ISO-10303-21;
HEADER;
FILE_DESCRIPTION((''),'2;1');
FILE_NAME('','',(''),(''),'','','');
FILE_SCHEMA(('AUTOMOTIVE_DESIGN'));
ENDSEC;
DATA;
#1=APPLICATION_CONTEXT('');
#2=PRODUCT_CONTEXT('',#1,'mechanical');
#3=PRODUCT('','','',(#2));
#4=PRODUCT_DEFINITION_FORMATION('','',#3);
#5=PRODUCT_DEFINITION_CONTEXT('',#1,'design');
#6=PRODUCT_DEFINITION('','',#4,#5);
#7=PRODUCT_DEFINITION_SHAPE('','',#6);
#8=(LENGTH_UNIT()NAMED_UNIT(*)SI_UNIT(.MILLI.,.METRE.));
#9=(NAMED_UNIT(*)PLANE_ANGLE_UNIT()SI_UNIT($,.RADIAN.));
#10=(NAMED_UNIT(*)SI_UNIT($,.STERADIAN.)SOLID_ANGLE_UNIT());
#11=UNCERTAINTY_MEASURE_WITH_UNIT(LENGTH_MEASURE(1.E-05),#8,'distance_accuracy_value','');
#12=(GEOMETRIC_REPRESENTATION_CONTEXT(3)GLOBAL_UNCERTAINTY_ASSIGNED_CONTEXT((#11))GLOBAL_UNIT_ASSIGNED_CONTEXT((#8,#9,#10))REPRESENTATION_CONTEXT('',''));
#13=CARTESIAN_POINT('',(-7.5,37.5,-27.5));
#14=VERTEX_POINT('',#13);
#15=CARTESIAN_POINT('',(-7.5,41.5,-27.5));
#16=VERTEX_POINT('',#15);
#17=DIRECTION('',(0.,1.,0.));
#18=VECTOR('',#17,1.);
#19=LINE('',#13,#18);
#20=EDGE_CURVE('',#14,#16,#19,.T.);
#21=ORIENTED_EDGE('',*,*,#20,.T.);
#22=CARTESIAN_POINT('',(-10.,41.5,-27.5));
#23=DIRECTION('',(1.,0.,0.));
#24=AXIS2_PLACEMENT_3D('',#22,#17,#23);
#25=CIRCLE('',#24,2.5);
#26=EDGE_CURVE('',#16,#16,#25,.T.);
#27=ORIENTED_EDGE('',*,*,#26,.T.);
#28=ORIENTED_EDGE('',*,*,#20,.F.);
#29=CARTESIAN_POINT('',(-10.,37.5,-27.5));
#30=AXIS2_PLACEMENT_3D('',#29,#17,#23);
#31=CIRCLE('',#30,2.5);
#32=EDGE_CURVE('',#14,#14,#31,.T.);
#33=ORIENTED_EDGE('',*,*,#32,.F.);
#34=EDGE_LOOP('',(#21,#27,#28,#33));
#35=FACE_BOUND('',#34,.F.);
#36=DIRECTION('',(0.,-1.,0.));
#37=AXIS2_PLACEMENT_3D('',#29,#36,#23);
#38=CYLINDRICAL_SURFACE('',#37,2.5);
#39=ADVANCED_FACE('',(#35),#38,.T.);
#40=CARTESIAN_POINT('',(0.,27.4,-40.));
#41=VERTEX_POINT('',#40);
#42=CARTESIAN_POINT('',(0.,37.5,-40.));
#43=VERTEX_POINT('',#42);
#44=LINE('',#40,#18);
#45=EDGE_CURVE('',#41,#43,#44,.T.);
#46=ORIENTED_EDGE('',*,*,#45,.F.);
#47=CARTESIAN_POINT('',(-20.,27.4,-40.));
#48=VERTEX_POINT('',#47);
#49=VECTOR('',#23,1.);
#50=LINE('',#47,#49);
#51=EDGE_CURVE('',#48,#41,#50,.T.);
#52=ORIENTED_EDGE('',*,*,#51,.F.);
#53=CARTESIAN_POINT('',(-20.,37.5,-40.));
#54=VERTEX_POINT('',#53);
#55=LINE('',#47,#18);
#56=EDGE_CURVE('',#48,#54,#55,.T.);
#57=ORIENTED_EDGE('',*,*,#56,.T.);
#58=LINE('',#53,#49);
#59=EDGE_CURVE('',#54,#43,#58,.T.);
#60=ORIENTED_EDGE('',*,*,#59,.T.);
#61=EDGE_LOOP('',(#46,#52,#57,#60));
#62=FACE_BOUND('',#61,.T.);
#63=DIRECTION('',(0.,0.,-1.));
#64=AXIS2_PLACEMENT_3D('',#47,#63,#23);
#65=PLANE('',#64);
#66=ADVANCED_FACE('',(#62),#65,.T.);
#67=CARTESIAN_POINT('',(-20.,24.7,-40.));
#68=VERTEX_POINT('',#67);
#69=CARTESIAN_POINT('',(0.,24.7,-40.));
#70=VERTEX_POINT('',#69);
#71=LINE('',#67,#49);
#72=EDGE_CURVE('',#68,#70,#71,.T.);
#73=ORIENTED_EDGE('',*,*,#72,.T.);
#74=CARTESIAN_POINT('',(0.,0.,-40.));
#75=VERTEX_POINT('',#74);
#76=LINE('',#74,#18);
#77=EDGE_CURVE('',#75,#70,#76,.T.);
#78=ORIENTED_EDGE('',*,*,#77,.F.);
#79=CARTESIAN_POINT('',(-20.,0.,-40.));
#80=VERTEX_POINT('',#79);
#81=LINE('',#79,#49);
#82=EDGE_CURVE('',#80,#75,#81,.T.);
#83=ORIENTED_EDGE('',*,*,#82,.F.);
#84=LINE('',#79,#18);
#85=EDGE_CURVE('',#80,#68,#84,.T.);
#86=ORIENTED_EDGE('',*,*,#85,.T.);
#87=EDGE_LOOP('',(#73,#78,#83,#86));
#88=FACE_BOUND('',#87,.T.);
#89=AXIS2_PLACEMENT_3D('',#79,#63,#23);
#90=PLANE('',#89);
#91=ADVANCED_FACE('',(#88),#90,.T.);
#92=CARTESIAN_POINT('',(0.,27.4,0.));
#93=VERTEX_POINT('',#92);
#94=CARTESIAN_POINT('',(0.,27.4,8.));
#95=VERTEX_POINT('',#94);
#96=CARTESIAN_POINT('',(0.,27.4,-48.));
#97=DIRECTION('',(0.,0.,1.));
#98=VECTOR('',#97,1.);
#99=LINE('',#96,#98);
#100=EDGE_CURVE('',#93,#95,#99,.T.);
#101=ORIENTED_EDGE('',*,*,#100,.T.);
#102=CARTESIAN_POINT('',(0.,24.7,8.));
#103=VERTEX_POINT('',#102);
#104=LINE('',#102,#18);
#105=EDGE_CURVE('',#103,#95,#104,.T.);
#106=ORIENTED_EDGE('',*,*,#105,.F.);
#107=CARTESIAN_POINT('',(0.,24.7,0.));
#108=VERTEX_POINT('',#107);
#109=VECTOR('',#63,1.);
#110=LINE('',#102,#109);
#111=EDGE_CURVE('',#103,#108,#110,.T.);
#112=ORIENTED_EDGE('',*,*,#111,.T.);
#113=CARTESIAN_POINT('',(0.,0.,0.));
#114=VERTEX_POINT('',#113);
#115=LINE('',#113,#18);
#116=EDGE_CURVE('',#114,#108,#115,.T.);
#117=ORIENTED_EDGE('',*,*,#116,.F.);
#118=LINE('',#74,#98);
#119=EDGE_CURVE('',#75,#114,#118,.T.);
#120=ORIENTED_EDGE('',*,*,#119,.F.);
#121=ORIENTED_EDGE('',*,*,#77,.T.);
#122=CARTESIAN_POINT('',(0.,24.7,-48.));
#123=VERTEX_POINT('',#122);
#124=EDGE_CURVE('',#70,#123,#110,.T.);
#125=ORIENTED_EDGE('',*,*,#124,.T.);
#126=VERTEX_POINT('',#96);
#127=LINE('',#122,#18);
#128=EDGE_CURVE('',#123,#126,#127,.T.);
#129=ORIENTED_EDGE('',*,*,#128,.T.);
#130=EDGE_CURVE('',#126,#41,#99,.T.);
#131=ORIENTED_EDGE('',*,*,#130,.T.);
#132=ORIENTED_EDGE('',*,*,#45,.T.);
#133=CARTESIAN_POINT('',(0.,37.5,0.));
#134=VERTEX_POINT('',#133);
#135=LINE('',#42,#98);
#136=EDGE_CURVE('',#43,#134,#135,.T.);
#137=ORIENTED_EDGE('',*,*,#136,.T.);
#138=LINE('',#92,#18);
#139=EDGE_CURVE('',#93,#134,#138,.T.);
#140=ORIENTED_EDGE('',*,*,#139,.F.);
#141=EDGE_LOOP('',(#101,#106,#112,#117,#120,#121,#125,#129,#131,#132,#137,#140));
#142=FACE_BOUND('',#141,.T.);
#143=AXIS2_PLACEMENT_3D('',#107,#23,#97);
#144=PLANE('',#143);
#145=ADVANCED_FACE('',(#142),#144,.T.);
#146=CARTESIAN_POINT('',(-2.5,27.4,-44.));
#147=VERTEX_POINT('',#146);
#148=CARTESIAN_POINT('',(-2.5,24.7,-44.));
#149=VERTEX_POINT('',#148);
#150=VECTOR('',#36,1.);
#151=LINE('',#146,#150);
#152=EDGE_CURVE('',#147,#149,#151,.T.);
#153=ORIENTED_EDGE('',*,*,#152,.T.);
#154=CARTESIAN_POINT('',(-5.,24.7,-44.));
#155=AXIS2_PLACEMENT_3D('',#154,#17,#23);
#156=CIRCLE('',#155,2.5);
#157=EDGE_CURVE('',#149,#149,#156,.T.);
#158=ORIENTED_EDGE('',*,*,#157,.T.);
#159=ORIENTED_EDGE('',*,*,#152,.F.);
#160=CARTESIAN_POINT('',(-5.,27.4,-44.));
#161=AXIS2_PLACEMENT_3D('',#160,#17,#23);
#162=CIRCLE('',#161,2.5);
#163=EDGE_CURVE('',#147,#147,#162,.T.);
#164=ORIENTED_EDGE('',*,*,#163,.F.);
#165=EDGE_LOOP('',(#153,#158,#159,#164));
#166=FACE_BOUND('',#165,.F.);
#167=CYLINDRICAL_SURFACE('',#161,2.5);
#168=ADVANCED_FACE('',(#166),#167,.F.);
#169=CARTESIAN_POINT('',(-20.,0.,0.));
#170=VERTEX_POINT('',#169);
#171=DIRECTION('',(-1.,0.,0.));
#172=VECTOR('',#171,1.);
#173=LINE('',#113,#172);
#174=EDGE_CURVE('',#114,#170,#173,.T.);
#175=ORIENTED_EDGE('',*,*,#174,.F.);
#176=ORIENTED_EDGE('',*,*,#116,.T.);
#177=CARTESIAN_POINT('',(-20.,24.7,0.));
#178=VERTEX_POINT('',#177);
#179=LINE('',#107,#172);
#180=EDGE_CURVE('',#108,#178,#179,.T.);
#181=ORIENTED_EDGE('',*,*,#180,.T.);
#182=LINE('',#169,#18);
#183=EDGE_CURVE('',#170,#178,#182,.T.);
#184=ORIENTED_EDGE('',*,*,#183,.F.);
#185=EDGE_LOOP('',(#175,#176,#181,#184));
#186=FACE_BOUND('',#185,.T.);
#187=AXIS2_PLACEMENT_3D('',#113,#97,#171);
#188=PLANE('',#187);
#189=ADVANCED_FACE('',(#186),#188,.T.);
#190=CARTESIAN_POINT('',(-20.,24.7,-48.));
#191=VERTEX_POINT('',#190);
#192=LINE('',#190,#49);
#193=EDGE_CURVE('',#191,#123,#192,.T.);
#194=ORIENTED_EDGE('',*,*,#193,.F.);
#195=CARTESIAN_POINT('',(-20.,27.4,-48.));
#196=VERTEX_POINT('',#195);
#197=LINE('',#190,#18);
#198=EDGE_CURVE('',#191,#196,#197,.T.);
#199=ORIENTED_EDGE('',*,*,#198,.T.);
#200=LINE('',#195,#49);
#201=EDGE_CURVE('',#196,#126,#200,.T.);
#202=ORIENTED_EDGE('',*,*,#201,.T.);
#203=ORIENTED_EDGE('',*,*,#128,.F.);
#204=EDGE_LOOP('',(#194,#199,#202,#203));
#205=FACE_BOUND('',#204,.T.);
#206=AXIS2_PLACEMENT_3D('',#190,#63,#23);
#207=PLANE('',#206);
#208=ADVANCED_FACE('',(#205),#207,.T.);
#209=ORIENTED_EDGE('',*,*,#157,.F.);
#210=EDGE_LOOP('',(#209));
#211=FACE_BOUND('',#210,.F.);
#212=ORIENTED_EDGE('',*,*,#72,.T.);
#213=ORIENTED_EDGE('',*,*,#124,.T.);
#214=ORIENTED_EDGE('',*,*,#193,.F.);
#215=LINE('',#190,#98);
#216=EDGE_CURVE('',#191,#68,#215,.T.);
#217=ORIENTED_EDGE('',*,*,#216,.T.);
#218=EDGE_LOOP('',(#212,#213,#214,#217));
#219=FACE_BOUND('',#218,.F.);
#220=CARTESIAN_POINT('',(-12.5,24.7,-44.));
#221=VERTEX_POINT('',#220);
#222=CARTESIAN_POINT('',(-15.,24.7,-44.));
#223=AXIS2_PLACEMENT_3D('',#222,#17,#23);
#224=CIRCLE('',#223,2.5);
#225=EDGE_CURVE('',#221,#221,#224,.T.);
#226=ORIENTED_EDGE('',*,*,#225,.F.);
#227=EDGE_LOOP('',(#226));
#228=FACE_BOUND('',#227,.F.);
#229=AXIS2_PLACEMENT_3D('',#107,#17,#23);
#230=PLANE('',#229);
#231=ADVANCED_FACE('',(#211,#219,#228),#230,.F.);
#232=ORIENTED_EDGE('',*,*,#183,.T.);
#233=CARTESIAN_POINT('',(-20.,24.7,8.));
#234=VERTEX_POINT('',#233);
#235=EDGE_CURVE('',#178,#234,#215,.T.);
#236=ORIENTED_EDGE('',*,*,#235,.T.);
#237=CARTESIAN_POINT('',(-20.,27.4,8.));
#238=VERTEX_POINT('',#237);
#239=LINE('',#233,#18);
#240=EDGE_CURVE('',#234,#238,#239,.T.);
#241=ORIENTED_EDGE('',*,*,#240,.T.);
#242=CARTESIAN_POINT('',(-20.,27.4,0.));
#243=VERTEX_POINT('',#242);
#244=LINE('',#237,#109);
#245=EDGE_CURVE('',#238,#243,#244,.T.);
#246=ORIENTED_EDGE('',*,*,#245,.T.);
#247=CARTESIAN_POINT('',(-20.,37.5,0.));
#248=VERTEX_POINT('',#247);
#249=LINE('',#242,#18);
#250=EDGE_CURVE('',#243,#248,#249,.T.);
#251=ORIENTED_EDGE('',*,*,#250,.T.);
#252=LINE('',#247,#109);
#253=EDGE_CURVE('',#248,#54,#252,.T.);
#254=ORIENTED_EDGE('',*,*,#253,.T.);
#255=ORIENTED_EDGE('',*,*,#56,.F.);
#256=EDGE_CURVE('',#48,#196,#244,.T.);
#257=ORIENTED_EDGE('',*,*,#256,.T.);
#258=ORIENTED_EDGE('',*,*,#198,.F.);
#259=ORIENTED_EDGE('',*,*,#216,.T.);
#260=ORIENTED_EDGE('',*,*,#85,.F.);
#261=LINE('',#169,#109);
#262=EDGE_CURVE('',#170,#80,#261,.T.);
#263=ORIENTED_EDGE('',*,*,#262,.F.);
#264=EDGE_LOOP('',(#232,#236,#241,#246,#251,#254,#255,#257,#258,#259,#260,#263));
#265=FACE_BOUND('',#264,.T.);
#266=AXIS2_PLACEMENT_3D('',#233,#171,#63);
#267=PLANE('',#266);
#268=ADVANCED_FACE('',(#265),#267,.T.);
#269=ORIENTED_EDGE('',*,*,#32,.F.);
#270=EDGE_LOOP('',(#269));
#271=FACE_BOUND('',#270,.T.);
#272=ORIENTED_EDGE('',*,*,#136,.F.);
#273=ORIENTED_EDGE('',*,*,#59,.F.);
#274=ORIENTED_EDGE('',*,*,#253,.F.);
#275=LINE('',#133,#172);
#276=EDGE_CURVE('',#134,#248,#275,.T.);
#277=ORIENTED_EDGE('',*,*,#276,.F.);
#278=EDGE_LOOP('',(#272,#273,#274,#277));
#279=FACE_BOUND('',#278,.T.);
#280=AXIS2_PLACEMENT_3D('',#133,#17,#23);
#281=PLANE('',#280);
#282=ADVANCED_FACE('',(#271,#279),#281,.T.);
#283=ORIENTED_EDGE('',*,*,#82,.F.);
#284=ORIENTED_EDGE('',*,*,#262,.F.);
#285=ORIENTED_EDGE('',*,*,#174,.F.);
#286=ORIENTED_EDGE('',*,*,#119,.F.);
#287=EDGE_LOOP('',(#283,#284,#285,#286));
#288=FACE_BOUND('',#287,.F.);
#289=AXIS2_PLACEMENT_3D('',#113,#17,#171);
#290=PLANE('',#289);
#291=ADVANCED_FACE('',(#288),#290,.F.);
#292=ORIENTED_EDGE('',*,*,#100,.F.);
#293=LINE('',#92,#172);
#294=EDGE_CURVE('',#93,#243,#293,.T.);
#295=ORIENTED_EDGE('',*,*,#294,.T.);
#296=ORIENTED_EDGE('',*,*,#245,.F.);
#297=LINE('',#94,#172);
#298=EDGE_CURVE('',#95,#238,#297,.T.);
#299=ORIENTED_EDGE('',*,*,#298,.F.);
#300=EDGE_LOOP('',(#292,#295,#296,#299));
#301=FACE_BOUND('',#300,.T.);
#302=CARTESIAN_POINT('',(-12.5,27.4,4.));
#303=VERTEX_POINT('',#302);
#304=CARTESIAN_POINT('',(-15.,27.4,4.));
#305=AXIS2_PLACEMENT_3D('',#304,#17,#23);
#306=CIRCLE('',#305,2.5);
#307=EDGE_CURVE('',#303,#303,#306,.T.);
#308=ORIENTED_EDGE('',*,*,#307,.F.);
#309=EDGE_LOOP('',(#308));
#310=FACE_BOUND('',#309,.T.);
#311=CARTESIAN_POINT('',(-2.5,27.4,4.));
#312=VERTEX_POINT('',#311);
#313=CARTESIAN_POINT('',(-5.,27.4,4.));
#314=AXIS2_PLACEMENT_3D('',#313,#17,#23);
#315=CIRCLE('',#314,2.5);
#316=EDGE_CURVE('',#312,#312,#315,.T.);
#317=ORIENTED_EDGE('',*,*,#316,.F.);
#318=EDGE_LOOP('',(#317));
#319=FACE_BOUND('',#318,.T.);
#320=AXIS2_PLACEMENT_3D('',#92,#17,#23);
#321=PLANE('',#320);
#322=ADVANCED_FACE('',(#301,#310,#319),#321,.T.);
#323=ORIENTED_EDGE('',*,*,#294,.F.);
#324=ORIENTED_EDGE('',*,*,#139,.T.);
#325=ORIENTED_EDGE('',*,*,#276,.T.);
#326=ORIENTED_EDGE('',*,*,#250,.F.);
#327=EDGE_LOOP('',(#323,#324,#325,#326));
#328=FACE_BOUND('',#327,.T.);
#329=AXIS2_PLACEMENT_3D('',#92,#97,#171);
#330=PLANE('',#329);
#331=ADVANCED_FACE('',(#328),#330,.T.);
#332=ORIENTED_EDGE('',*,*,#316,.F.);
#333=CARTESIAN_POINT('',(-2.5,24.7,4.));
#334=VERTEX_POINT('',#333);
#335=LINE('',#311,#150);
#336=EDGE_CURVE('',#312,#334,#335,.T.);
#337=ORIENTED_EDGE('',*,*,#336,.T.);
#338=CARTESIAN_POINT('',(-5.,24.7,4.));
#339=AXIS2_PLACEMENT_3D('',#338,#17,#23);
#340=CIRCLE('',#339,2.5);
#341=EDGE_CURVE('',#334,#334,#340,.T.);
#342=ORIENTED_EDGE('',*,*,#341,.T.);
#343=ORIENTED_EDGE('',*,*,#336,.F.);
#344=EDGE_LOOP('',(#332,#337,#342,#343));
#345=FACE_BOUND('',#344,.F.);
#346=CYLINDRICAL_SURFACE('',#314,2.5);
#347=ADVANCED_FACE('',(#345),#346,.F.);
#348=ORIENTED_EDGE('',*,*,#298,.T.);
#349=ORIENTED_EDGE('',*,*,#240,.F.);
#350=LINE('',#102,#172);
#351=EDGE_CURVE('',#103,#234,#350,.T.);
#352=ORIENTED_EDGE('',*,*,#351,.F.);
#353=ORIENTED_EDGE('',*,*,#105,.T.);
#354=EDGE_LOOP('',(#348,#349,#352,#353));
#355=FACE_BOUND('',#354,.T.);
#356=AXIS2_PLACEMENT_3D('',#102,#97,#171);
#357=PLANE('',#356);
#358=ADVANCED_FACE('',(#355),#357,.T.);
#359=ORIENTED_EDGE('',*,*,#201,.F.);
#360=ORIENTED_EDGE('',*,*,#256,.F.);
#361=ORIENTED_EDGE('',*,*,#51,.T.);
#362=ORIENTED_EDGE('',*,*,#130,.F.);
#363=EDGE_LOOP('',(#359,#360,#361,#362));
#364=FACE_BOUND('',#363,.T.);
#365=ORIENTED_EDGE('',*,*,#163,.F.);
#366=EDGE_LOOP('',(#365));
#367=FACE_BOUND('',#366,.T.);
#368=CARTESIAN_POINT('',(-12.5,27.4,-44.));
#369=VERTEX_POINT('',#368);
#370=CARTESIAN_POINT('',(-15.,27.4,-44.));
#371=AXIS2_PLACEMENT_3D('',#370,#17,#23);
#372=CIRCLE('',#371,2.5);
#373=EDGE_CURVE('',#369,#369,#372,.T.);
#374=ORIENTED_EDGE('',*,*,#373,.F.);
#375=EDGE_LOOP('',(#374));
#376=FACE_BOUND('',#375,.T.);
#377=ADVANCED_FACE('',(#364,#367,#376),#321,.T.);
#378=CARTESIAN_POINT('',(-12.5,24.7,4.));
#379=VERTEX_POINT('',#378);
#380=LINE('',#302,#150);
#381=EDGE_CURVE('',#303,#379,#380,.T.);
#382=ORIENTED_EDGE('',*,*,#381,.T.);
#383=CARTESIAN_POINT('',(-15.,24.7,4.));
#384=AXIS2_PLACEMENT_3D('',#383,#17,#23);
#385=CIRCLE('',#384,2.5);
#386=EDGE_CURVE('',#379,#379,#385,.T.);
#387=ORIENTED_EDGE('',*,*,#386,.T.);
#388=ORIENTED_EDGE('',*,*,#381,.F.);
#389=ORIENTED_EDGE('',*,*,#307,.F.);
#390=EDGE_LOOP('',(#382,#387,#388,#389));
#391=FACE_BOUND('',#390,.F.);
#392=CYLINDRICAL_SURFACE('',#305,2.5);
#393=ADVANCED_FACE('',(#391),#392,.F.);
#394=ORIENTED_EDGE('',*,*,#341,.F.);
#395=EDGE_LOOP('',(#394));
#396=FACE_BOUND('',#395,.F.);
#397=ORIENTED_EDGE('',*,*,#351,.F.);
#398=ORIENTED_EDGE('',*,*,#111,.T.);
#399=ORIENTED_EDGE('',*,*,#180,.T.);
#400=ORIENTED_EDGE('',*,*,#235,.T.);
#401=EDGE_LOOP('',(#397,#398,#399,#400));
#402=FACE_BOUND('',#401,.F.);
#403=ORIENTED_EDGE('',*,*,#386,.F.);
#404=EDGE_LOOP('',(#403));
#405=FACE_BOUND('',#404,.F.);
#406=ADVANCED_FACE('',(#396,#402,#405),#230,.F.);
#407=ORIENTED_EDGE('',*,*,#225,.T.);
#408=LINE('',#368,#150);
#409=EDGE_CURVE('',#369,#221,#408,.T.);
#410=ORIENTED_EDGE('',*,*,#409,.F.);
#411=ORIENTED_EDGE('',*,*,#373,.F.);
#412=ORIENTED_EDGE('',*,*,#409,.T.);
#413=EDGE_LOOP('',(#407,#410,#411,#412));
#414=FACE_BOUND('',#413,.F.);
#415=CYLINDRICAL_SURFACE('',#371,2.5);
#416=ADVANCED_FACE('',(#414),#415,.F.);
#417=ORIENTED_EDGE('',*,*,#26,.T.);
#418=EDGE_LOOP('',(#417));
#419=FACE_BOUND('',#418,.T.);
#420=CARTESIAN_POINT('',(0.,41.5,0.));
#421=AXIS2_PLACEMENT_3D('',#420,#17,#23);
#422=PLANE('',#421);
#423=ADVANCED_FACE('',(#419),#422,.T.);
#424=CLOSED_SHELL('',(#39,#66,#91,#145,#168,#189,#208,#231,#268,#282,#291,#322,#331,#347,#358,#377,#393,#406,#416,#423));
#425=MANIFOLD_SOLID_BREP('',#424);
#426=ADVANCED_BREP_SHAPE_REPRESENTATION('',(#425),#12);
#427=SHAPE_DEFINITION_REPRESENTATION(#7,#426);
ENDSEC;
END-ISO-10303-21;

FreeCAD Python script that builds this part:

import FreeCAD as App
import Part
import Sketcher


def add_polygon(sketch, points):
    """Adds a closed chain of lines whose ends are joined by coincident constraints."""
    first, n = sketch.GeometryCount, len(points)
    for a, b in zip(points, points[1:] + points[:1]):
        sketch.addGeometry(Part.LineSegment(App.Vector(*a, 0), App.Vector(*b, 0)), False)
    for i in range(n):
        sketch.addConstraint(Sketcher.Constraint("Coincident", first + i, 2, first + (i + 1) % n, 1))

doc = App.newDocument("Part")
body = doc.addObject("PartDesign::Body", "Body")

sketch1 = body.newObject("Sketcher::SketchObject", "Sketch")
sketch1.AttachmentSupport = (doc.getObject("XZ_Plane"), [""])
sketch1.MapMode = "FlatFace"
add_polygon(sketch1, [(-20, 0), (0, 0), (0, -40), (-20, -40)])
sketch1.addConstraint([
    Sketcher.Constraint("Horizontal", 0),
    Sketcher.Constraint("Vertical", 1),
    Sketcher.Constraint("Horizontal", 2),
    Sketcher.Constraint("Vertical", 3),
    Sketcher.Constraint("Coincident", 0, 2, -1, 1),
    Sketcher.Constraint("DistanceX", 0, 1, 0, 2, 20.0),
    Sketcher.Constraint("DistanceY", 1, 2, 1, 1, 40.0),
])
pad1 = body.newObject("PartDesign::Pad", "Pad")
pad1.Profile = sketch1
pad1.Length = 24.7
pad1.Reversed = True

sketch2 = body.newObject("Sketcher::SketchObject", "Sketch001")
sketch2.AttachmentSupport = (doc.getObject("XZ_Plane"), [""])
sketch2.MapMode = "FlatFace"
sketch2.AttachmentOffset = App.Placement(App.Vector(0, 0, -24.7), App.Rotation())
add_polygon(sketch2, [(-20, 8), (0, 8), (0, -48), (-20, -48)])
sketch2.addConstraint([
    Sketcher.Constraint("Horizontal", 0),
    Sketcher.Constraint("Vertical", 1),
    Sketcher.Constraint("Horizontal", 2),
    Sketcher.Constraint("Vertical", 3),
    Sketcher.Constraint("PointOnObject", 0, 2, -2),
    Sketcher.Constraint("DistanceX", 0, 1, 0, 2, 20.0),
    Sketcher.Constraint("DistanceY", 1, 2, 1, 1, 56.0),
    Sketcher.Constraint("DistanceY", -1, 1, 0, 2, 8.0),
])
pad2 = body.newObject("PartDesign::Pad", "Pad001")
pad2.Profile = sketch2
pad2.Length = 2.7
pad2.Reversed = True

sketch3 = body.newObject("Sketcher::SketchObject", "Sketch002")
sketch3.AttachmentSupport = (doc.getObject("XZ_Plane"), [""])
sketch3.MapMode = "FlatFace"
sketch3.AttachmentOffset = App.Placement(App.Vector(0, 0, -27.4), App.Rotation())
add_polygon(sketch3, [(-20, 0), (0, 0), (0, -40), (-20, -40)])
sketch3.addConstraint([
    Sketcher.Constraint("Horizontal", 0),
    Sketcher.Constraint("Vertical", 1),
    Sketcher.Constraint("Horizontal", 2),
    Sketcher.Constraint("Vertical", 3),
    Sketcher.Constraint("Coincident", 0, 2, -1, 1),
    Sketcher.Constraint("DistanceX", 0, 1, 0, 2, 20.0),
    Sketcher.Constraint("DistanceY", 1, 2, 1, 1, 40.0),
])
pad3 = body.newObject("PartDesign::Pad", "Pad002")
pad3.Profile = sketch3
pad3.Length = 10.1
pad3.Reversed = True

sketch4 = body.newObject("Sketcher::SketchObject", "Sketch003")
sketch4.AttachmentSupport = (doc.getObject("XZ_Plane"), [""])
sketch4.MapMode = "FlatFace"
sketch4.AttachmentOffset = App.Placement(App.Vector(0, 0, -37.5), App.Rotation())
sketch4.addGeometry(Part.Circle(App.Vector(-10, -27.5, 0), App.Vector(0, 0, 1), 2.5), False)
sketch4.addConstraint([
    Sketcher.Constraint("Diameter", 0, 5.0),
    Sketcher.Constraint("DistanceX", 0, 3, -1, 1, 10.0),
    Sketcher.Constraint("DistanceY", 0, 3, -1, 1, 27.5),
])
pad4 = body.newObject("PartDesign::Pad", "Pad003")
pad4.Profile = sketch4
pad4.Length = 4
pad4.Reversed = True

sketch5 = body.newObject("Sketcher::SketchObject", "Sketch004")
sketch5.AttachmentSupport = (doc.getObject("XZ_Plane"), [""])
sketch5.MapMode = "FlatFace"
sketch5.AttachmentOffset = App.Placement(App.Vector(0, 0, -27.4), App.Rotation())
sketch5.addGeometry([
    Part.Circle(App.Vector(-5, 4, 0), App.Vector(0, 0, 1), 2.5),
    Part.Circle(App.Vector(-15, 4, 0), App.Vector(0, 0, 1), 2.5),
    Part.Circle(App.Vector(-5, -44, 0), App.Vector(0, 0, 1), 2.5),
    Part.Circle(App.Vector(-15, -44, 0), App.Vector(0, 0, 1), 2.5),
], False)
sketch5.addConstraint([
    Sketcher.Constraint("Equal", 0, 1),
    Sketcher.Constraint("Equal", 1, 2),
    Sketcher.Constraint("Equal", 2, 3),
    Sketcher.Constraint("Horizontal", 0, 3, 1, 3),
    Sketcher.Constraint("Horizontal", 2, 3, 3, 3),
    Sketcher.Constraint("Vertical", 0, 3, 2, 3),
    Sketcher.Constraint("Vertical", 1, 3, 3, 3),
    Sketcher.Constraint("Diameter", 0, 5.0),
    Sketcher.Constraint("DistanceX", 0, 3, -1, 1, 5.0),
    Sketcher.Constraint("DistanceY", -1, 1, 0, 3, 4.0),
    Sketcher.Constraint("DistanceX", 1, 3, -1, 1, 15.0),
    Sketcher.Constraint("DistanceY", 2, 3, -1, 1, 44.0),
])
pocket1 = body.newObject("PartDesign::Pocket", "Pocket")
pocket1.Profile = sketch5
pocket1.Length = 4
pocket1.Reversed = True

doc.recompute()
